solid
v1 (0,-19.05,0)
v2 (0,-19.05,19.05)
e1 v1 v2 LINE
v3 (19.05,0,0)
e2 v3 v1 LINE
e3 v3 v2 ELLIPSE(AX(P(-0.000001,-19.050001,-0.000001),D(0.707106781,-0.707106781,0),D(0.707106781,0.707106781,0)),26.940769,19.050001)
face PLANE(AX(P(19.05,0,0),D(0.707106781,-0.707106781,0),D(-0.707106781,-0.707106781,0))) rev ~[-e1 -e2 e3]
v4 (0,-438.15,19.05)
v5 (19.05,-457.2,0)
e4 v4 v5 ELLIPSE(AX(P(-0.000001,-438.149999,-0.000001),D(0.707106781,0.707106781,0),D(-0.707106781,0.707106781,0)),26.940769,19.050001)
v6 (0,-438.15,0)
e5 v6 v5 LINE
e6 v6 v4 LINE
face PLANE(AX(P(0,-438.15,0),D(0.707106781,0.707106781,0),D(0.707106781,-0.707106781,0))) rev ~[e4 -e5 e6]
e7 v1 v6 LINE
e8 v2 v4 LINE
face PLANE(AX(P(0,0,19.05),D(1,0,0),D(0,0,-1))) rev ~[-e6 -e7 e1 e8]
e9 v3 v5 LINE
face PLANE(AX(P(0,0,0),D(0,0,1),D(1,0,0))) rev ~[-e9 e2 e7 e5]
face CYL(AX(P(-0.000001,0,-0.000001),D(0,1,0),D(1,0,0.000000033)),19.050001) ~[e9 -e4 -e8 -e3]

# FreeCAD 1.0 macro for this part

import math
import FreeCAD as App
import Part
import Sketcher
Q = App.Units.Quantity

doc = App.newDocument("Part")
body = doc.addObject("PartDesign::Body", "Body")

# Sketch on XZ plane
sketch1 = body.newObject("Sketcher::SketchObject", "Sketch")
sketch1.AttachmentSupport = (doc.getObject("XZ_Plane"), [""])
sketch1.MapMode = "FlatFace"
sketch1.addGeometry(Part.LineSegment(App.Vector(0, 19, 0), App.Vector(0, 0, 0)), False)
sketch1.addGeometry(Part.LineSegment(App.Vector(0, 0, 0), App.Vector(19, 0, 0)), False)
sketch1.addGeometry(Part.ArcOfCircle(Part.Circle(App.Vector(0, 0, 0), App.Vector(0, 0, 1), 19), math.radians(0), math.radians(90)), False)
sketch1.addConstraint(Sketcher.Constraint("Coincident", 0, 2, 1, 1))
sketch1.addConstraint(Sketcher.Constraint("Coincident", 1, 2, 2, 1))
sketch1.addConstraint(Sketcher.Constraint("Coincident", 2, 2, 0, 1))
sketch1.addConstraint(Sketcher.Constraint("Vertical", 0))
sketch1.addConstraint(Sketcher.Constraint("Horizontal", 1))
sketch1.addConstraint(Sketcher.Constraint("Coincident", 2, 3, -1, 1))
sketch1.addConstraint(Sketcher.Constraint("Coincident", 0, 2, -1, 1))
sketch1.addConstraint(Sketcher.Constraint("Radius", 2, Q("0.75 in")))
pad1 = body.newObject("PartDesign::Pad", "Pad")
pad1.Profile = sketch1
pad1.Length = Q("18 in")

# Sketch on XY plane
sketch2 = body.newObject("Sketcher::SketchObject", "Sketch001")
sketch2.AttachmentSupport = (doc.getObject("XY_Plane"), [""])
sketch2.MapMode = "FlatFace"
sketch2.addGeometry(Part.LineSegment(App.Vector(0, 0, 0), App.Vector(19, 0, 0)), False)
sketch2.addGeometry(Part.LineSegment(App.Vector(19, 0, 0), App.Vector(0, -19, 0)), False)
sketch2.addGeometry(Part.LineSegment(App.Vector(0, -19, 0), App.Vector(0, 0, 0)), False)
sketch2.addGeometry(Part.LineSegment(App.Vector(0, -438, 0), App.Vector(19, -457, 0)), False)
sketch2.addGeometry(Part.LineSegment(App.Vector(19, -457, 0), App.Vector(0, -457, 0)), False)
sketch2.addGeometry(Part.LineSegment(App.Vector(0, -457, 0), App.Vector(0, -438, 0)), False)
sketch2.addConstraint(Sketcher.Constraint("Coincident", 0, 2, 1, 1))
sketch2.addConstraint(Sketcher.Constraint("Coincident", 1, 2, 2, 1))
sketch2.addConstraint(Sketcher.Constraint("Coincident", 2, 2, 0, 1))
sketch2.addConstraint(Sketcher.Constraint("Coincident", 3, 2, 4, 1))
sketch2.addConstraint(Sketcher.Constraint("Coincident", 4, 2, 5, 1))
sketch2.addConstraint(Sketcher.Constraint("Coincident", 5, 2, 3, 1))
sketch2.addConstraint(Sketcher.Constraint("Horizontal", 0))
sketch2.addConstraint(Sketcher.Constraint("Vertical", 2))
sketch2.addConstraint(Sketcher.Constraint("Horizontal", 4))
sketch2.addConstraint(Sketcher.Constraint("Vertical", 5))
sketch2.addConstraint(Sketcher.Constraint("Coincident", 2, 2, -1, 1))
sketch2.addConstraint(Sketcher.Constraint("PointOnObject", 4, 2, -2))
sketch2.addConstraint(Sketcher.Constraint("Perpendicular", 1, 3))
sketch2.addConstraint(Sketcher.Constraint("Vertical", 0, 2, 3, 2))
sketch2.addConstraint(Sketcher.Constraint("Equal", 4, 2))
sketch2.addConstraint(Sketcher.Constraint("DistanceY", 3, 2, -1, 1, Q("18 in")))
sketch2.addConstraint(Sketcher.Constraint("DistanceX", 0, 1, 0, 2, Q("0.75 in")))
pocket1 = body.newObject("PartDesign::Pocket", "Pocket")
pocket1.Profile = sketch2
pocket1.Length = Q("1 in")
pocket1.Reversed = True

doc.recompute()
